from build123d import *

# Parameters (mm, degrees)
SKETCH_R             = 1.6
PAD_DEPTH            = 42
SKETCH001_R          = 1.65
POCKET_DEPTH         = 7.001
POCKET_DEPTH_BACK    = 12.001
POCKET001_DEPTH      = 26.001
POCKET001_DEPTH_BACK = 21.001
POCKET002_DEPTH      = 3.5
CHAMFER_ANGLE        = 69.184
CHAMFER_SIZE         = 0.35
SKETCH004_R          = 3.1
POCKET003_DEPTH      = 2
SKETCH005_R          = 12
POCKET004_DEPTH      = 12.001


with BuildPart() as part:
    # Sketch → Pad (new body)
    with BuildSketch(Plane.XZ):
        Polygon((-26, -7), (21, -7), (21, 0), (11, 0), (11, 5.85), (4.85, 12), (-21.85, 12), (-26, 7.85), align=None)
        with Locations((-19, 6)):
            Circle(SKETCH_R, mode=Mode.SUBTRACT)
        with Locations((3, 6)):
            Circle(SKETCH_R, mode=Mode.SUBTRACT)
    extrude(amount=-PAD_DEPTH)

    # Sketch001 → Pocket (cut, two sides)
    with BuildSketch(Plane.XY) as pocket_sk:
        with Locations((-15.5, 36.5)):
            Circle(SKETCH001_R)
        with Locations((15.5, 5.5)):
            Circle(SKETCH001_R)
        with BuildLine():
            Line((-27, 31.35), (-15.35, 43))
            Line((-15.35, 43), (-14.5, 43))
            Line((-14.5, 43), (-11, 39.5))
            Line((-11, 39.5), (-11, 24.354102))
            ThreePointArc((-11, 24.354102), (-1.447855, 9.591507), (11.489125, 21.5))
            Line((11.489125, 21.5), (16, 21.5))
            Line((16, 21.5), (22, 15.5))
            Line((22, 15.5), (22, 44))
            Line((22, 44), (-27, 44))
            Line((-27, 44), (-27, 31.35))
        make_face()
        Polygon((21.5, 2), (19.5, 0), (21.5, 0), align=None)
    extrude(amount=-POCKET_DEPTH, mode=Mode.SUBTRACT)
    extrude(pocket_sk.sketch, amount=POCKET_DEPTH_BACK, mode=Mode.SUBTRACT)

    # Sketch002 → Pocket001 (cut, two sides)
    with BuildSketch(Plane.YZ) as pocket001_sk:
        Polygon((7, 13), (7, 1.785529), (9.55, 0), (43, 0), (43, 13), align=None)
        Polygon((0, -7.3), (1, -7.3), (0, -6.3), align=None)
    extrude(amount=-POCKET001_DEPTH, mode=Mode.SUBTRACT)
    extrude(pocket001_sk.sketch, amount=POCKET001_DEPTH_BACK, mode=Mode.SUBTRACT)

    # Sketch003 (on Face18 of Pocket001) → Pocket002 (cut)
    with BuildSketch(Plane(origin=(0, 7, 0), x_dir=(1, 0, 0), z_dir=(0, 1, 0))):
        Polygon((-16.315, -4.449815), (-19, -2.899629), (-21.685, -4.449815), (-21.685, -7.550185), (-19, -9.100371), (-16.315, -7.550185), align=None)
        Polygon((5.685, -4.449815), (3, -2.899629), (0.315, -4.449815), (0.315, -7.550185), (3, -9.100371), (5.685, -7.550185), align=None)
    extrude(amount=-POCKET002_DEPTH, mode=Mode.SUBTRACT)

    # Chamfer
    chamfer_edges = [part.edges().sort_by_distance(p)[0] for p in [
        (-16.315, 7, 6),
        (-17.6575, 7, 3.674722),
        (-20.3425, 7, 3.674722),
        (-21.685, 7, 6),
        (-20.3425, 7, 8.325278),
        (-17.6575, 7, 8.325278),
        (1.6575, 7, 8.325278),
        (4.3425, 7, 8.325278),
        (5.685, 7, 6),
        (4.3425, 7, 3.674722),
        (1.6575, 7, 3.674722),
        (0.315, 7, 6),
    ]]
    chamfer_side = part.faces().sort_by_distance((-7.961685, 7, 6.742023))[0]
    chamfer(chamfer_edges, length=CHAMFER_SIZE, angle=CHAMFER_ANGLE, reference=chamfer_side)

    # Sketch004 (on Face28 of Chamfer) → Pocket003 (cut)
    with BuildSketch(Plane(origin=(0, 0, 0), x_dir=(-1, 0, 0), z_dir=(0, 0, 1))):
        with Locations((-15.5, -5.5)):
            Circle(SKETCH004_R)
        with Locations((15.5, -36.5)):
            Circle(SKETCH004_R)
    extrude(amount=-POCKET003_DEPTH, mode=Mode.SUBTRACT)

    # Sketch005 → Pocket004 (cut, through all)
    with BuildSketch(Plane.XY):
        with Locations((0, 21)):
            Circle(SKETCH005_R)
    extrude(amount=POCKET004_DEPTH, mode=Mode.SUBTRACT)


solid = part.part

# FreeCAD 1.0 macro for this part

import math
import FreeCAD as App
import Part
import Sketcher
from FreeCAD import Vector
Q = App.Units.Quantity


def edges_at(feature, points):
    """Names of the edges that pass closest to the given points."""
    edges = feature.Shape.Edges
    near = lambda p: min(range(len(edges)), key=lambda i: edges[i].distToShape(Part.Vertex(*p))[0])
    return sorted({f"Edge{near(p) + 1}" for p in points})

doc = App.newDocument("Part")
body = doc.addObject("PartDesign::Body", "Body")

# Sketch on XZ plane
sketch1 = body.newObject("Sketcher::SketchObject", "Sketch")
sketch1.AttachmentSupport = (doc.getObject("XZ_Plane"), [""])
sketch1.MapMode = "FlatFace"
sketch1.addGeometry([
    Part.LineSegment(Vector(-26, -7, 0), Vector(21, -7, 0)),  # 0
    Part.LineSegment(Vector(21, -7, 0), Vector(21, 0, 0)),  # 1
    Part.LineSegment(Vector(21, 0, 0), Vector(11, 0, 0)),  # 2
    Part.LineSegment(Vector(11, 0, 0), Vector(11, 5.8, 0)),  # 3
    Part.LineSegment(Vector(11, 5.8, 0), Vector(4.8, 12, 0)),  # 4
    Part.LineSegment(Vector(4.8, 12, 0), Vector(-21.9, 12, 0)),  # 5
    Part.LineSegment(Vector(-21.9, 12, 0), Vector(-26, 7.8, 0)),  # 6
    Part.LineSegment(Vector(-26, 7.8, 0), Vector(-26, -7, 0)),  # 7
    Part.Circle(Vector(-19, 6, 0), Vector(0, 0, 1), 1.6),  # 8
    Part.Circle(Vector(3, 6, 0), Vector(0, 0, 1), 1.6),  # 9
], False)
sketch1.addConstraint([
    Sketcher.Constraint("Coincident", 0, 2, 1, 1),
    Sketcher.Constraint("Coincident", 1, 2, 2, 1),
    Sketcher.Constraint("Coincident", 2, 2, 3, 1),
    Sketcher.Constraint("Coincident", 3, 2, 4, 1),
    Sketcher.Constraint("Coincident", 4, 2, 5, 1),
    Sketcher.Constraint("Coincident", 5, 2, 6, 1),
    Sketcher.Constraint("Coincident", 6, 2, 7, 1),
    Sketcher.Constraint("Coincident", 7, 2, 0, 1),
    Sketcher.Constraint("Horizontal", 0),
    Sketcher.Constraint("Vertical", 1),
    Sketcher.Constraint("Horizontal", 2),
    Sketcher.Constraint("Vertical", 3),
    Sketcher.Constraint("Horizontal", 5),
    Sketcher.Constraint("Vertical", 7),
    Sketcher.Constraint("Equal", 8, 9),
    Sketcher.Constraint("PointOnObject", 1, 2, -1),
    Sketcher.Constraint("Perpendicular", 4, 6),
    Sketcher.Constraint("Horizontal", 8, 3, 9, 3),
    Sketcher.Constraint("Diameter", 8, Q("3.2 mm")),
    Sketcher.Constraint("DistanceX", 0, 1, 0, 2, Q("47 mm")),
    Sketcher.Constraint("DistanceX", 2, 2, 2, 1, Q("10 mm")),
    Sketcher.Constraint("DistanceY", 1, 1, 1, 2, Q("7 mm")),
    Sketcher.Constraint("Angle", 4, Q("135 deg")),
    Sketcher.Constraint("DistanceX", 5, 2, 5, 1, Q("26.7 mm")),
    Sketcher.Constraint("DistanceX", 8, 3, -1, 1, Q("19 mm")),
    Sketcher.Constraint("DistanceY", -1, 1, 8, 3, Q("6 mm")),
    Sketcher.Constraint("DistanceX", -1, 1, 9, 3, Q("3 mm")),
    Sketcher.Constraint("DistanceX", -1, 1, 0, 2, Q("21 mm")),
    Sketcher.Constraint("DistanceY", -1, 1, 4, 2, Q("12 mm")),
    Sketcher.Constraint("DistanceY", 3, 2, 6, 2, Q("2 mm")),
])
pad1 = body.newObject("PartDesign::Pad", "Pad")
pad1.Profile = sketch1
pad1.Length = 42
pad1.Reversed = True

# Sketch on XY plane
sketch2 = body.newObject("Sketcher::SketchObject", "Sketch001")
sketch2.AttachmentSupport = (doc.getObject("XY_Plane"), [""])
sketch2.MapMode = "FlatFace"
sketch2.addGeometry([
    Part.Circle(Vector(-15.5, 36.5, 0), Vector(0, 0, 1), 1.6),  # 0
    Part.Circle(Vector(15.5, 5.5, 0), Vector(0, 0, 1), 1.6),  # 1
    Part.LineSegment(Vector(-27, 31.4, 0), Vector(-15.3, 43, 0)),  # 2
    Part.LineSegment(Vector(-15.3, 43, 0), Vector(-14.5, 43, 0)),  # 3
    Part.LineSegment(Vector(-14.5, 43, 0), Vector(-11, 39.5, 0)),  # 4
    Part.LineSegment(Vector(-11, 39.5, 0), Vector(-11, 24.4, 0)),  # 5
    Part.ArcOfCircle(Part.Circle(Vector(0, 21, 0), Vector(0, 0, 1), 11.5), math.radians(163), math.radians(362)),  # 6
    Part.LineSegment(Vector(11.5, 21.5, 0), Vector(16, 21.5, 0)),  # 7
    Part.LineSegment(Vector(16, 21.5, 0), Vector(22, 15.5, 0)),  # 8
    Part.LineSegment(Vector(22, 15.5, 0), Vector(22, 44, 0)),  # 9
    Part.LineSegment(Vector(22, 44, 0), Vector(-27, 44, 0)),  # 10
    Part.LineSegment(Vector(-27, 44, 0), Vector(-27, 31.4, 0)),  # 11
    Part.LineSegment(Vector(21.5, 2, 0), Vector(19.5, 0, 0)),  # 12
    Part.LineSegment(Vector(19.5, 0, 0), Vector(21.5, 0, 0)),  # 13
    Part.LineSegment(Vector(21.5, 0, 0), Vector(21.5, 2, 0)),  # 14
], False)
sketch2.addConstraint([
    Sketcher.Constraint("Coincident", 2, 2, 3, 1),
    Sketcher.Constraint("Coincident", 3, 2, 4, 1),
    Sketcher.Constraint("Coincident", 4, 2, 5, 1),
    Sketcher.Constraint("Coincident", 5, 2, 6, 1),
    Sketcher.Constraint("Coincident", 6, 2, 7, 1),
    Sketcher.Constraint("Coincident", 7, 2, 8, 1),
    Sketcher.Constraint("Coincident", 8, 2, 9, 1),
    Sketcher.Constraint("Coincident", 9, 2, 10, 1),
    Sketcher.Constraint("Coincident", 10, 2, 11, 1),
    Sketcher.Constraint("Coincident", 11, 2, 2, 1),
    Sketcher.Constraint("Coincident", 12, 2, 13, 1),
    Sketcher.Constraint("Coincident", 13, 2, 14, 1),
    Sketcher.Constraint("Coincident", 14, 2, 12, 1),
    Sketcher.Constraint("Horizontal", 3),
    Sketcher.Constraint("Vertical", 5),
    Sketcher.Constraint("Horizontal", 7),
    Sketcher.Constraint("Vertical", 9),
    Sketcher.Constraint("Horizontal", 10),
    Sketcher.Constraint("Vertical", 11),
    Sketcher.Constraint("Horizontal", 13),
    Sketcher.Constraint("Vertical", 14),
    Sketcher.Constraint("Equal", 0, 1),
    Sketcher.Constraint("PointOnObject", 6, 3, -2),
    Sketcher.Constraint("PointOnObject", 12, 2, -1),
    Sketcher.Constraint("Perpendicular", 2, 4),
    Sketcher.Constraint("Parallel", 4, 8),
    Sketcher.Constraint("Perpendicular", 8, 12),
    Sketcher.Constraint("Equal", 13, 14),
    Sketcher.Constraint("Diameter", 0, Q("3.3 mm")),
    Sketcher.Constraint("Radius", 6, Q("11.5 mm")),
    Sketcher.Constraint("DistanceX", 10, 2, 10, 1, Q("49 mm")),
    Sketcher.Constraint("DistanceX", 13, 1, 13, 2, Q("2 mm")),
    Sketcher.Constraint("DistanceY", 9, 1, 9, 2, Q("28.5 mm")),
    Sketcher.Constraint("DistanceY", -1, 1, 6, 3, Q("21 mm")),
    Sketcher.Constraint("DistanceY", -1, 1, 2, 2, Q("43 mm")),
    Sketcher.Constraint("DistanceX", 4, 2, -1, 1, Q("11 mm")),
    Sketcher.Constraint("DistanceX", -1, 1, 7, 2, Q("16 mm")),
    Sketcher.Constraint("DistanceX", -1, 1, 8, 2, Q("22 mm")),
    Sketcher.Constraint("DistanceY", -1, 1, 9, 2, Q("44 mm")),
    Sketcher.Constraint("DistanceX", 0, 3, 1, 3, Q("31 mm")),
    Sketcher.Constraint("DistanceY", 1, 3, 0, 3, Q("31 mm")),
    Sketcher.Constraint("DistanceX", 0, 3, 3, 2, Q("1 mm")),
    Sketcher.Constraint("DistanceY", 0, 3, 4, 2, Q("3 mm")),
    Sketcher.Constraint("DistanceY", 1, 3, 6, 2, Q("16 mm")),
    Sketcher.Constraint("DistanceX", 1, 3, 12, 2, Q("4 mm")),
    Sketcher.Constraint("DistanceX", 3, 1, 3, 2, Q("0.85 mm")),
])
pocket1 = body.newObject("PartDesign::Pocket", "Pocket")
pocket1.Profile = sketch2
pocket1.Type = "ThroughAll"
pocket1.Midplane = True

# Sketch on YZ plane
sketch3 = body.newObject("Sketcher::SketchObject", "Sketch002")
sketch3.AttachmentSupport = (doc.getObject("YZ_Plane"), [""])
sketch3.MapMode = "FlatFace"
sketch3.addGeometry([
    Part.LineSegment(Vector(7, 13, 0), Vector(7, 1.8, 0)),  # 0
    Part.LineSegment(Vector(7, 1.8, 0), Vector(9.6, 0, 0)),  # 1
    Part.LineSegment(Vector(9.6, 0, 0), Vector(43, 0, 0)),  # 2
    Part.LineSegment(Vector(43, 0, 0), Vector(43, 13, 0)),  # 3
    Part.LineSegment(Vector(43, 13, 0), Vector(7, 13, 0)),  # 4
    Part.LineSegment(Vector(0, -7.3, 0), Vector(1, -7.3, 0)),  # 5
    Part.LineSegment(Vector(1, -7.3, 0), Vector(0, -6.3, 0)),  # 6
    Part.LineSegment(Vector(0, -6.3, 0), Vector(0, -7.3, 0)),  # 7
], False)
sketch3.addConstraint([
    Sketcher.Constraint("Coincident", 0, 2, 1, 1),
    Sketcher.Constraint("Coincident", 1, 2, 2, 1),
    Sketcher.Constraint("Coincident", 2, 2, 3, 1),
    Sketcher.Constraint("Coincident", 3, 2, 4, 1),
    Sketcher.Constraint("Coincident", 4, 2, 0, 1),
    Sketcher.Constraint("Coincident", 5, 2, 6, 1),
    Sketcher.Constraint("Coincident", 6, 2, 7, 1),
    Sketcher.Constraint("Coincident", 7, 2, 5, 1),
    Sketcher.Constraint("Vertical", 0),
    Sketcher.Constraint("Horizontal", 2),
    Sketcher.Constraint("Vertical", 3),
    Sketcher.Constraint("Horizontal", 4),
    Sketcher.Constraint("Horizontal", 5),
    Sketcher.Constraint("Vertical", 7),
    Sketcher.Constraint("PointOnObject", 1, 2, -1),
    Sketcher.Constraint("PointOnObject", 6, 2, -2),
    Sketcher.Constraint("Equal", 5, 7),
    Sketcher.Constraint("DistanceX", 4, 2, 4, 1, Q("36 mm")),
    Sketcher.Constraint("DistanceX", 5, 1, 5, 2, Q("1 mm")),
    Sketcher.Constraint("DistanceY", 3, 1, 3, 2, Q("13 mm")),
    Sketcher.Constraint("Angle", 1, Q("-34.999997 deg")),
    Sketcher.Constraint("DistanceX", -1, 1, 0, 2, Q("7 mm")),
    Sketcher.Constraint("DistanceX", 2, 1, 2, 2, Q("33.45 mm")),
    Sketcher.Constraint("DistanceY", 5, 2, -1, 1, Q("7.3 mm")),
])
pocket2 = body.newObject("PartDesign::Pocket", "Pocket001")
pocket2.Profile = sketch3
pocket2.Type = "ThroughAll"
pocket2.Midplane = True

# Sketch on XZ plane
sketch4 = body.newObject("Sketcher::SketchObject", "Sketch003")
sketch4.AttachmentSupport = (doc.getObject("XZ_Plane"), [""])
sketch4.MapMode = "FlatFace"
sketch4.AttachmentOffset = App.Placement(Vector(0, 0, -7), App.Rotation())
sketch4.addGeometry([
    Part.LineSegment(Vector(-16.3, 4.4, 0), Vector(-19, 2.9, 0)),  # 0
    Part.LineSegment(Vector(-19, 2.9, 0), Vector(-21.7, 4.4, 0)),  # 1
    Part.LineSegment(Vector(-21.7, 4.4, 0), Vector(-21.7, 7.6, 0)),  # 2
    Part.LineSegment(Vector(-21.7, 7.6, 0), Vector(-19, 9.1, 0)),  # 3
    Part.LineSegment(Vector(-19, 9.1, 0), Vector(-16.3, 7.6, 0)),  # 4
    Part.LineSegment(Vector(-16.3, 7.6, 0), Vector(-16.3, 4.4, 0)),  # 5
    Part.LineSegment(Vector(5.7, 4.4, 0), Vector(3, 2.9, 0)),  # 6
    Part.LineSegment(Vector(3, 2.9, 0), Vector(0.3, 4.4, 0)),  # 7
    Part.LineSegment(Vector(0.3, 4.4, 0), Vector(0.3, 7.6, 0)),  # 8
    Part.LineSegment(Vector(0.3, 7.6, 0), Vector(3, 9.1, 0)),  # 9
    Part.LineSegment(Vector(3, 9.1, 0), Vector(5.7, 7.6, 0)),  # 10
    Part.LineSegment(Vector(5.7, 7.6, 0), Vector(5.7, 4.4, 0)),  # 11
], False)
sketch4.addConstraint([
    Sketcher.Constraint("Coincident", 0, 2, 1, 1),
    Sketcher.Constraint("Coincident", 1, 2, 2, 1),
    Sketcher.Constraint("Coincident", 2, 2, 3, 1),
    Sketcher.Constraint("Coincident", 3, 2, 4, 1),
    Sketcher.Constraint("Coincident", 4, 2, 5, 1),
    Sketcher.Constraint("Coincident", 5, 2, 0, 1),
    Sketcher.Constraint("Coincident", 6, 2, 7, 1),
    Sketcher.Constraint("Coincident", 7, 2, 8, 1),
    Sketcher.Constraint("Coincident", 8, 2, 9, 1),
    Sketcher.Constraint("Coincident", 9, 2, 10, 1),
    Sketcher.Constraint("Coincident", 10, 2, 11, 1),
    Sketcher.Constraint("Coincident", 11, 2, 6, 1),
    Sketcher.Constraint("Vertical", 2),
    Sketcher.Constraint("Vertical", 5),
    Sketcher.Constraint("Vertical", 8),
    Sketcher.Constraint("Vertical", 11),
    Sketcher.Constraint("Parallel", 0, 3),
    Sketcher.Constraint("Parallel", 1, 4),
    Sketcher.Constraint("Parallel", 3, 6),
    Sketcher.Constraint("Parallel", 4, 7),
    Sketcher.Constraint("Parallel", 6, 9),
    Sketcher.Constraint("Parallel", 7, 10),
    Sketcher.Constraint("Horizontal", 2, 2, 4, 2),
    Sketcher.Constraint("Horizontal", 1, 2, 5, 2),
    Sketcher.Constraint("Horizontal", 0, 2, 6, 2),
    Sketcher.Constraint("Horizontal", 5, 2, 7, 2),
    Sketcher.Constraint("Horizontal", 4, 2, 8, 2),
    Sketcher.Constraint("Horizontal", 3, 2, 9, 2),
    Sketcher.Constraint("Horizontal", 8, 2, 10, 2),
    Sketcher.Constraint("Vertical", 0, 2, 3, 2),
    Sketcher.Constraint("Angle", 0, Q("-149.999992 deg")),
    Sketcher.Constraint("DistanceX", 0, 2, -1, 1, Q("19 mm")),
    Sketcher.Constraint("DistanceX", -1, 1, 6, 2, Q("3 mm")),
    Sketcher.Constraint("DistanceX", 2, 2, 4, 2, Q("5.37 mm")),
    Sketcher.Constraint("DistanceY", 2, 1, 2, 2, Q("3.10037 mm")),
    Sketcher.Constraint("DistanceY", -1, 1, 0, 2, Q("2.899629 mm")),
])
pocket3 = body.newObject("PartDesign::Pocket", "Pocket002")
pocket3.Profile = sketch4
pocket3.Length = 3.5
pocket3.Reversed = True
doc.recompute()

chamfer = body.newObject("PartDesign::Chamfer", "Chamfer")
chamfer.Base = (pocket3, edges_at(pocket3, [
    (-16.315, 7, 6),
    (-17.657, 7, 3.675),
    (-20.343, 7, 3.675),
    (-21.685, 7, 6),
    (-20.343, 7, 8.325),
    (-17.657, 7, 8.325),
    (1.657, 7, 8.325),
    (4.343, 7, 8.325),
    (5.685, 7, 6),
    (4.343, 7, 3.675),
    (1.657, 7, 3.675),
    (0.315, 7, 6),
]))
chamfer.ChamferType = "Distance and Angle"
chamfer.Size = 0.35
chamfer.Angle = 69.184

# Sketch on XY plane
sketch5 = body.newObject("Sketcher::SketchObject", "Sketch004")
sketch5.AttachmentSupport = (doc.getObject("XY_Plane"), [""])
sketch5.MapMode = "FlatFace"
sketch5.addGeometry([
    Part.Circle(Vector(15.5, 5.5, 0), Vector(0, 0, 1), 3.1),
    Part.Circle(Vector(-15.5, 36.5, 0), Vector(0, 0, 1), 3.1),
], False)
sketch5.addConstraint([
    Sketcher.Constraint("Equal", 0, 1),
    Sketcher.Constraint("Diameter", 0, Q("6.2 mm")),
    Sketcher.Constraint("DistanceX", 1, 3, 0, 3, Q("31 mm")),
    Sketcher.Constraint("DistanceY", 0, 3, 1, 3, Q("31 mm")),
    Sketcher.Constraint("DistanceX", -1, 1, 0, 3, Q("15.5 mm")),
    Sketcher.Constraint("DistanceY", -1, 1, 0, 3, Q("5.5 mm")),
])
pocket4 = body.newObject("PartDesign::Pocket", "Pocket003")
pocket4.Profile = sketch5
pocket4.Length = 2

# Sketch on XY plane
sketch6 = body.newObject("Sketcher::SketchObject", "Sketch005")
sketch6.AttachmentSupport = (doc.getObject("XY_Plane"), [""])
sketch6.MapMode = "FlatFace"
sketch6.addGeometry(Part.Circle(Vector(0, 21, 0), Vector(0, 0, 1), 12), False)
sketch6.addConstraint([
    Sketcher.Constraint("PointOnObject", 0, 3, -2),
    Sketcher.Constraint("Diameter", 0, Q("24 mm")),
    Sketcher.Constraint("DistanceY", -1, 1, 0, 3, Q("21 mm")),
])
pocket5 = body.newObject("PartDesign::Pocket", "Pocket004")
pocket5.Profile = sketch6
pocket5.Type = "ThroughAll"
pocket5.Reversed = True

doc.recompute()
